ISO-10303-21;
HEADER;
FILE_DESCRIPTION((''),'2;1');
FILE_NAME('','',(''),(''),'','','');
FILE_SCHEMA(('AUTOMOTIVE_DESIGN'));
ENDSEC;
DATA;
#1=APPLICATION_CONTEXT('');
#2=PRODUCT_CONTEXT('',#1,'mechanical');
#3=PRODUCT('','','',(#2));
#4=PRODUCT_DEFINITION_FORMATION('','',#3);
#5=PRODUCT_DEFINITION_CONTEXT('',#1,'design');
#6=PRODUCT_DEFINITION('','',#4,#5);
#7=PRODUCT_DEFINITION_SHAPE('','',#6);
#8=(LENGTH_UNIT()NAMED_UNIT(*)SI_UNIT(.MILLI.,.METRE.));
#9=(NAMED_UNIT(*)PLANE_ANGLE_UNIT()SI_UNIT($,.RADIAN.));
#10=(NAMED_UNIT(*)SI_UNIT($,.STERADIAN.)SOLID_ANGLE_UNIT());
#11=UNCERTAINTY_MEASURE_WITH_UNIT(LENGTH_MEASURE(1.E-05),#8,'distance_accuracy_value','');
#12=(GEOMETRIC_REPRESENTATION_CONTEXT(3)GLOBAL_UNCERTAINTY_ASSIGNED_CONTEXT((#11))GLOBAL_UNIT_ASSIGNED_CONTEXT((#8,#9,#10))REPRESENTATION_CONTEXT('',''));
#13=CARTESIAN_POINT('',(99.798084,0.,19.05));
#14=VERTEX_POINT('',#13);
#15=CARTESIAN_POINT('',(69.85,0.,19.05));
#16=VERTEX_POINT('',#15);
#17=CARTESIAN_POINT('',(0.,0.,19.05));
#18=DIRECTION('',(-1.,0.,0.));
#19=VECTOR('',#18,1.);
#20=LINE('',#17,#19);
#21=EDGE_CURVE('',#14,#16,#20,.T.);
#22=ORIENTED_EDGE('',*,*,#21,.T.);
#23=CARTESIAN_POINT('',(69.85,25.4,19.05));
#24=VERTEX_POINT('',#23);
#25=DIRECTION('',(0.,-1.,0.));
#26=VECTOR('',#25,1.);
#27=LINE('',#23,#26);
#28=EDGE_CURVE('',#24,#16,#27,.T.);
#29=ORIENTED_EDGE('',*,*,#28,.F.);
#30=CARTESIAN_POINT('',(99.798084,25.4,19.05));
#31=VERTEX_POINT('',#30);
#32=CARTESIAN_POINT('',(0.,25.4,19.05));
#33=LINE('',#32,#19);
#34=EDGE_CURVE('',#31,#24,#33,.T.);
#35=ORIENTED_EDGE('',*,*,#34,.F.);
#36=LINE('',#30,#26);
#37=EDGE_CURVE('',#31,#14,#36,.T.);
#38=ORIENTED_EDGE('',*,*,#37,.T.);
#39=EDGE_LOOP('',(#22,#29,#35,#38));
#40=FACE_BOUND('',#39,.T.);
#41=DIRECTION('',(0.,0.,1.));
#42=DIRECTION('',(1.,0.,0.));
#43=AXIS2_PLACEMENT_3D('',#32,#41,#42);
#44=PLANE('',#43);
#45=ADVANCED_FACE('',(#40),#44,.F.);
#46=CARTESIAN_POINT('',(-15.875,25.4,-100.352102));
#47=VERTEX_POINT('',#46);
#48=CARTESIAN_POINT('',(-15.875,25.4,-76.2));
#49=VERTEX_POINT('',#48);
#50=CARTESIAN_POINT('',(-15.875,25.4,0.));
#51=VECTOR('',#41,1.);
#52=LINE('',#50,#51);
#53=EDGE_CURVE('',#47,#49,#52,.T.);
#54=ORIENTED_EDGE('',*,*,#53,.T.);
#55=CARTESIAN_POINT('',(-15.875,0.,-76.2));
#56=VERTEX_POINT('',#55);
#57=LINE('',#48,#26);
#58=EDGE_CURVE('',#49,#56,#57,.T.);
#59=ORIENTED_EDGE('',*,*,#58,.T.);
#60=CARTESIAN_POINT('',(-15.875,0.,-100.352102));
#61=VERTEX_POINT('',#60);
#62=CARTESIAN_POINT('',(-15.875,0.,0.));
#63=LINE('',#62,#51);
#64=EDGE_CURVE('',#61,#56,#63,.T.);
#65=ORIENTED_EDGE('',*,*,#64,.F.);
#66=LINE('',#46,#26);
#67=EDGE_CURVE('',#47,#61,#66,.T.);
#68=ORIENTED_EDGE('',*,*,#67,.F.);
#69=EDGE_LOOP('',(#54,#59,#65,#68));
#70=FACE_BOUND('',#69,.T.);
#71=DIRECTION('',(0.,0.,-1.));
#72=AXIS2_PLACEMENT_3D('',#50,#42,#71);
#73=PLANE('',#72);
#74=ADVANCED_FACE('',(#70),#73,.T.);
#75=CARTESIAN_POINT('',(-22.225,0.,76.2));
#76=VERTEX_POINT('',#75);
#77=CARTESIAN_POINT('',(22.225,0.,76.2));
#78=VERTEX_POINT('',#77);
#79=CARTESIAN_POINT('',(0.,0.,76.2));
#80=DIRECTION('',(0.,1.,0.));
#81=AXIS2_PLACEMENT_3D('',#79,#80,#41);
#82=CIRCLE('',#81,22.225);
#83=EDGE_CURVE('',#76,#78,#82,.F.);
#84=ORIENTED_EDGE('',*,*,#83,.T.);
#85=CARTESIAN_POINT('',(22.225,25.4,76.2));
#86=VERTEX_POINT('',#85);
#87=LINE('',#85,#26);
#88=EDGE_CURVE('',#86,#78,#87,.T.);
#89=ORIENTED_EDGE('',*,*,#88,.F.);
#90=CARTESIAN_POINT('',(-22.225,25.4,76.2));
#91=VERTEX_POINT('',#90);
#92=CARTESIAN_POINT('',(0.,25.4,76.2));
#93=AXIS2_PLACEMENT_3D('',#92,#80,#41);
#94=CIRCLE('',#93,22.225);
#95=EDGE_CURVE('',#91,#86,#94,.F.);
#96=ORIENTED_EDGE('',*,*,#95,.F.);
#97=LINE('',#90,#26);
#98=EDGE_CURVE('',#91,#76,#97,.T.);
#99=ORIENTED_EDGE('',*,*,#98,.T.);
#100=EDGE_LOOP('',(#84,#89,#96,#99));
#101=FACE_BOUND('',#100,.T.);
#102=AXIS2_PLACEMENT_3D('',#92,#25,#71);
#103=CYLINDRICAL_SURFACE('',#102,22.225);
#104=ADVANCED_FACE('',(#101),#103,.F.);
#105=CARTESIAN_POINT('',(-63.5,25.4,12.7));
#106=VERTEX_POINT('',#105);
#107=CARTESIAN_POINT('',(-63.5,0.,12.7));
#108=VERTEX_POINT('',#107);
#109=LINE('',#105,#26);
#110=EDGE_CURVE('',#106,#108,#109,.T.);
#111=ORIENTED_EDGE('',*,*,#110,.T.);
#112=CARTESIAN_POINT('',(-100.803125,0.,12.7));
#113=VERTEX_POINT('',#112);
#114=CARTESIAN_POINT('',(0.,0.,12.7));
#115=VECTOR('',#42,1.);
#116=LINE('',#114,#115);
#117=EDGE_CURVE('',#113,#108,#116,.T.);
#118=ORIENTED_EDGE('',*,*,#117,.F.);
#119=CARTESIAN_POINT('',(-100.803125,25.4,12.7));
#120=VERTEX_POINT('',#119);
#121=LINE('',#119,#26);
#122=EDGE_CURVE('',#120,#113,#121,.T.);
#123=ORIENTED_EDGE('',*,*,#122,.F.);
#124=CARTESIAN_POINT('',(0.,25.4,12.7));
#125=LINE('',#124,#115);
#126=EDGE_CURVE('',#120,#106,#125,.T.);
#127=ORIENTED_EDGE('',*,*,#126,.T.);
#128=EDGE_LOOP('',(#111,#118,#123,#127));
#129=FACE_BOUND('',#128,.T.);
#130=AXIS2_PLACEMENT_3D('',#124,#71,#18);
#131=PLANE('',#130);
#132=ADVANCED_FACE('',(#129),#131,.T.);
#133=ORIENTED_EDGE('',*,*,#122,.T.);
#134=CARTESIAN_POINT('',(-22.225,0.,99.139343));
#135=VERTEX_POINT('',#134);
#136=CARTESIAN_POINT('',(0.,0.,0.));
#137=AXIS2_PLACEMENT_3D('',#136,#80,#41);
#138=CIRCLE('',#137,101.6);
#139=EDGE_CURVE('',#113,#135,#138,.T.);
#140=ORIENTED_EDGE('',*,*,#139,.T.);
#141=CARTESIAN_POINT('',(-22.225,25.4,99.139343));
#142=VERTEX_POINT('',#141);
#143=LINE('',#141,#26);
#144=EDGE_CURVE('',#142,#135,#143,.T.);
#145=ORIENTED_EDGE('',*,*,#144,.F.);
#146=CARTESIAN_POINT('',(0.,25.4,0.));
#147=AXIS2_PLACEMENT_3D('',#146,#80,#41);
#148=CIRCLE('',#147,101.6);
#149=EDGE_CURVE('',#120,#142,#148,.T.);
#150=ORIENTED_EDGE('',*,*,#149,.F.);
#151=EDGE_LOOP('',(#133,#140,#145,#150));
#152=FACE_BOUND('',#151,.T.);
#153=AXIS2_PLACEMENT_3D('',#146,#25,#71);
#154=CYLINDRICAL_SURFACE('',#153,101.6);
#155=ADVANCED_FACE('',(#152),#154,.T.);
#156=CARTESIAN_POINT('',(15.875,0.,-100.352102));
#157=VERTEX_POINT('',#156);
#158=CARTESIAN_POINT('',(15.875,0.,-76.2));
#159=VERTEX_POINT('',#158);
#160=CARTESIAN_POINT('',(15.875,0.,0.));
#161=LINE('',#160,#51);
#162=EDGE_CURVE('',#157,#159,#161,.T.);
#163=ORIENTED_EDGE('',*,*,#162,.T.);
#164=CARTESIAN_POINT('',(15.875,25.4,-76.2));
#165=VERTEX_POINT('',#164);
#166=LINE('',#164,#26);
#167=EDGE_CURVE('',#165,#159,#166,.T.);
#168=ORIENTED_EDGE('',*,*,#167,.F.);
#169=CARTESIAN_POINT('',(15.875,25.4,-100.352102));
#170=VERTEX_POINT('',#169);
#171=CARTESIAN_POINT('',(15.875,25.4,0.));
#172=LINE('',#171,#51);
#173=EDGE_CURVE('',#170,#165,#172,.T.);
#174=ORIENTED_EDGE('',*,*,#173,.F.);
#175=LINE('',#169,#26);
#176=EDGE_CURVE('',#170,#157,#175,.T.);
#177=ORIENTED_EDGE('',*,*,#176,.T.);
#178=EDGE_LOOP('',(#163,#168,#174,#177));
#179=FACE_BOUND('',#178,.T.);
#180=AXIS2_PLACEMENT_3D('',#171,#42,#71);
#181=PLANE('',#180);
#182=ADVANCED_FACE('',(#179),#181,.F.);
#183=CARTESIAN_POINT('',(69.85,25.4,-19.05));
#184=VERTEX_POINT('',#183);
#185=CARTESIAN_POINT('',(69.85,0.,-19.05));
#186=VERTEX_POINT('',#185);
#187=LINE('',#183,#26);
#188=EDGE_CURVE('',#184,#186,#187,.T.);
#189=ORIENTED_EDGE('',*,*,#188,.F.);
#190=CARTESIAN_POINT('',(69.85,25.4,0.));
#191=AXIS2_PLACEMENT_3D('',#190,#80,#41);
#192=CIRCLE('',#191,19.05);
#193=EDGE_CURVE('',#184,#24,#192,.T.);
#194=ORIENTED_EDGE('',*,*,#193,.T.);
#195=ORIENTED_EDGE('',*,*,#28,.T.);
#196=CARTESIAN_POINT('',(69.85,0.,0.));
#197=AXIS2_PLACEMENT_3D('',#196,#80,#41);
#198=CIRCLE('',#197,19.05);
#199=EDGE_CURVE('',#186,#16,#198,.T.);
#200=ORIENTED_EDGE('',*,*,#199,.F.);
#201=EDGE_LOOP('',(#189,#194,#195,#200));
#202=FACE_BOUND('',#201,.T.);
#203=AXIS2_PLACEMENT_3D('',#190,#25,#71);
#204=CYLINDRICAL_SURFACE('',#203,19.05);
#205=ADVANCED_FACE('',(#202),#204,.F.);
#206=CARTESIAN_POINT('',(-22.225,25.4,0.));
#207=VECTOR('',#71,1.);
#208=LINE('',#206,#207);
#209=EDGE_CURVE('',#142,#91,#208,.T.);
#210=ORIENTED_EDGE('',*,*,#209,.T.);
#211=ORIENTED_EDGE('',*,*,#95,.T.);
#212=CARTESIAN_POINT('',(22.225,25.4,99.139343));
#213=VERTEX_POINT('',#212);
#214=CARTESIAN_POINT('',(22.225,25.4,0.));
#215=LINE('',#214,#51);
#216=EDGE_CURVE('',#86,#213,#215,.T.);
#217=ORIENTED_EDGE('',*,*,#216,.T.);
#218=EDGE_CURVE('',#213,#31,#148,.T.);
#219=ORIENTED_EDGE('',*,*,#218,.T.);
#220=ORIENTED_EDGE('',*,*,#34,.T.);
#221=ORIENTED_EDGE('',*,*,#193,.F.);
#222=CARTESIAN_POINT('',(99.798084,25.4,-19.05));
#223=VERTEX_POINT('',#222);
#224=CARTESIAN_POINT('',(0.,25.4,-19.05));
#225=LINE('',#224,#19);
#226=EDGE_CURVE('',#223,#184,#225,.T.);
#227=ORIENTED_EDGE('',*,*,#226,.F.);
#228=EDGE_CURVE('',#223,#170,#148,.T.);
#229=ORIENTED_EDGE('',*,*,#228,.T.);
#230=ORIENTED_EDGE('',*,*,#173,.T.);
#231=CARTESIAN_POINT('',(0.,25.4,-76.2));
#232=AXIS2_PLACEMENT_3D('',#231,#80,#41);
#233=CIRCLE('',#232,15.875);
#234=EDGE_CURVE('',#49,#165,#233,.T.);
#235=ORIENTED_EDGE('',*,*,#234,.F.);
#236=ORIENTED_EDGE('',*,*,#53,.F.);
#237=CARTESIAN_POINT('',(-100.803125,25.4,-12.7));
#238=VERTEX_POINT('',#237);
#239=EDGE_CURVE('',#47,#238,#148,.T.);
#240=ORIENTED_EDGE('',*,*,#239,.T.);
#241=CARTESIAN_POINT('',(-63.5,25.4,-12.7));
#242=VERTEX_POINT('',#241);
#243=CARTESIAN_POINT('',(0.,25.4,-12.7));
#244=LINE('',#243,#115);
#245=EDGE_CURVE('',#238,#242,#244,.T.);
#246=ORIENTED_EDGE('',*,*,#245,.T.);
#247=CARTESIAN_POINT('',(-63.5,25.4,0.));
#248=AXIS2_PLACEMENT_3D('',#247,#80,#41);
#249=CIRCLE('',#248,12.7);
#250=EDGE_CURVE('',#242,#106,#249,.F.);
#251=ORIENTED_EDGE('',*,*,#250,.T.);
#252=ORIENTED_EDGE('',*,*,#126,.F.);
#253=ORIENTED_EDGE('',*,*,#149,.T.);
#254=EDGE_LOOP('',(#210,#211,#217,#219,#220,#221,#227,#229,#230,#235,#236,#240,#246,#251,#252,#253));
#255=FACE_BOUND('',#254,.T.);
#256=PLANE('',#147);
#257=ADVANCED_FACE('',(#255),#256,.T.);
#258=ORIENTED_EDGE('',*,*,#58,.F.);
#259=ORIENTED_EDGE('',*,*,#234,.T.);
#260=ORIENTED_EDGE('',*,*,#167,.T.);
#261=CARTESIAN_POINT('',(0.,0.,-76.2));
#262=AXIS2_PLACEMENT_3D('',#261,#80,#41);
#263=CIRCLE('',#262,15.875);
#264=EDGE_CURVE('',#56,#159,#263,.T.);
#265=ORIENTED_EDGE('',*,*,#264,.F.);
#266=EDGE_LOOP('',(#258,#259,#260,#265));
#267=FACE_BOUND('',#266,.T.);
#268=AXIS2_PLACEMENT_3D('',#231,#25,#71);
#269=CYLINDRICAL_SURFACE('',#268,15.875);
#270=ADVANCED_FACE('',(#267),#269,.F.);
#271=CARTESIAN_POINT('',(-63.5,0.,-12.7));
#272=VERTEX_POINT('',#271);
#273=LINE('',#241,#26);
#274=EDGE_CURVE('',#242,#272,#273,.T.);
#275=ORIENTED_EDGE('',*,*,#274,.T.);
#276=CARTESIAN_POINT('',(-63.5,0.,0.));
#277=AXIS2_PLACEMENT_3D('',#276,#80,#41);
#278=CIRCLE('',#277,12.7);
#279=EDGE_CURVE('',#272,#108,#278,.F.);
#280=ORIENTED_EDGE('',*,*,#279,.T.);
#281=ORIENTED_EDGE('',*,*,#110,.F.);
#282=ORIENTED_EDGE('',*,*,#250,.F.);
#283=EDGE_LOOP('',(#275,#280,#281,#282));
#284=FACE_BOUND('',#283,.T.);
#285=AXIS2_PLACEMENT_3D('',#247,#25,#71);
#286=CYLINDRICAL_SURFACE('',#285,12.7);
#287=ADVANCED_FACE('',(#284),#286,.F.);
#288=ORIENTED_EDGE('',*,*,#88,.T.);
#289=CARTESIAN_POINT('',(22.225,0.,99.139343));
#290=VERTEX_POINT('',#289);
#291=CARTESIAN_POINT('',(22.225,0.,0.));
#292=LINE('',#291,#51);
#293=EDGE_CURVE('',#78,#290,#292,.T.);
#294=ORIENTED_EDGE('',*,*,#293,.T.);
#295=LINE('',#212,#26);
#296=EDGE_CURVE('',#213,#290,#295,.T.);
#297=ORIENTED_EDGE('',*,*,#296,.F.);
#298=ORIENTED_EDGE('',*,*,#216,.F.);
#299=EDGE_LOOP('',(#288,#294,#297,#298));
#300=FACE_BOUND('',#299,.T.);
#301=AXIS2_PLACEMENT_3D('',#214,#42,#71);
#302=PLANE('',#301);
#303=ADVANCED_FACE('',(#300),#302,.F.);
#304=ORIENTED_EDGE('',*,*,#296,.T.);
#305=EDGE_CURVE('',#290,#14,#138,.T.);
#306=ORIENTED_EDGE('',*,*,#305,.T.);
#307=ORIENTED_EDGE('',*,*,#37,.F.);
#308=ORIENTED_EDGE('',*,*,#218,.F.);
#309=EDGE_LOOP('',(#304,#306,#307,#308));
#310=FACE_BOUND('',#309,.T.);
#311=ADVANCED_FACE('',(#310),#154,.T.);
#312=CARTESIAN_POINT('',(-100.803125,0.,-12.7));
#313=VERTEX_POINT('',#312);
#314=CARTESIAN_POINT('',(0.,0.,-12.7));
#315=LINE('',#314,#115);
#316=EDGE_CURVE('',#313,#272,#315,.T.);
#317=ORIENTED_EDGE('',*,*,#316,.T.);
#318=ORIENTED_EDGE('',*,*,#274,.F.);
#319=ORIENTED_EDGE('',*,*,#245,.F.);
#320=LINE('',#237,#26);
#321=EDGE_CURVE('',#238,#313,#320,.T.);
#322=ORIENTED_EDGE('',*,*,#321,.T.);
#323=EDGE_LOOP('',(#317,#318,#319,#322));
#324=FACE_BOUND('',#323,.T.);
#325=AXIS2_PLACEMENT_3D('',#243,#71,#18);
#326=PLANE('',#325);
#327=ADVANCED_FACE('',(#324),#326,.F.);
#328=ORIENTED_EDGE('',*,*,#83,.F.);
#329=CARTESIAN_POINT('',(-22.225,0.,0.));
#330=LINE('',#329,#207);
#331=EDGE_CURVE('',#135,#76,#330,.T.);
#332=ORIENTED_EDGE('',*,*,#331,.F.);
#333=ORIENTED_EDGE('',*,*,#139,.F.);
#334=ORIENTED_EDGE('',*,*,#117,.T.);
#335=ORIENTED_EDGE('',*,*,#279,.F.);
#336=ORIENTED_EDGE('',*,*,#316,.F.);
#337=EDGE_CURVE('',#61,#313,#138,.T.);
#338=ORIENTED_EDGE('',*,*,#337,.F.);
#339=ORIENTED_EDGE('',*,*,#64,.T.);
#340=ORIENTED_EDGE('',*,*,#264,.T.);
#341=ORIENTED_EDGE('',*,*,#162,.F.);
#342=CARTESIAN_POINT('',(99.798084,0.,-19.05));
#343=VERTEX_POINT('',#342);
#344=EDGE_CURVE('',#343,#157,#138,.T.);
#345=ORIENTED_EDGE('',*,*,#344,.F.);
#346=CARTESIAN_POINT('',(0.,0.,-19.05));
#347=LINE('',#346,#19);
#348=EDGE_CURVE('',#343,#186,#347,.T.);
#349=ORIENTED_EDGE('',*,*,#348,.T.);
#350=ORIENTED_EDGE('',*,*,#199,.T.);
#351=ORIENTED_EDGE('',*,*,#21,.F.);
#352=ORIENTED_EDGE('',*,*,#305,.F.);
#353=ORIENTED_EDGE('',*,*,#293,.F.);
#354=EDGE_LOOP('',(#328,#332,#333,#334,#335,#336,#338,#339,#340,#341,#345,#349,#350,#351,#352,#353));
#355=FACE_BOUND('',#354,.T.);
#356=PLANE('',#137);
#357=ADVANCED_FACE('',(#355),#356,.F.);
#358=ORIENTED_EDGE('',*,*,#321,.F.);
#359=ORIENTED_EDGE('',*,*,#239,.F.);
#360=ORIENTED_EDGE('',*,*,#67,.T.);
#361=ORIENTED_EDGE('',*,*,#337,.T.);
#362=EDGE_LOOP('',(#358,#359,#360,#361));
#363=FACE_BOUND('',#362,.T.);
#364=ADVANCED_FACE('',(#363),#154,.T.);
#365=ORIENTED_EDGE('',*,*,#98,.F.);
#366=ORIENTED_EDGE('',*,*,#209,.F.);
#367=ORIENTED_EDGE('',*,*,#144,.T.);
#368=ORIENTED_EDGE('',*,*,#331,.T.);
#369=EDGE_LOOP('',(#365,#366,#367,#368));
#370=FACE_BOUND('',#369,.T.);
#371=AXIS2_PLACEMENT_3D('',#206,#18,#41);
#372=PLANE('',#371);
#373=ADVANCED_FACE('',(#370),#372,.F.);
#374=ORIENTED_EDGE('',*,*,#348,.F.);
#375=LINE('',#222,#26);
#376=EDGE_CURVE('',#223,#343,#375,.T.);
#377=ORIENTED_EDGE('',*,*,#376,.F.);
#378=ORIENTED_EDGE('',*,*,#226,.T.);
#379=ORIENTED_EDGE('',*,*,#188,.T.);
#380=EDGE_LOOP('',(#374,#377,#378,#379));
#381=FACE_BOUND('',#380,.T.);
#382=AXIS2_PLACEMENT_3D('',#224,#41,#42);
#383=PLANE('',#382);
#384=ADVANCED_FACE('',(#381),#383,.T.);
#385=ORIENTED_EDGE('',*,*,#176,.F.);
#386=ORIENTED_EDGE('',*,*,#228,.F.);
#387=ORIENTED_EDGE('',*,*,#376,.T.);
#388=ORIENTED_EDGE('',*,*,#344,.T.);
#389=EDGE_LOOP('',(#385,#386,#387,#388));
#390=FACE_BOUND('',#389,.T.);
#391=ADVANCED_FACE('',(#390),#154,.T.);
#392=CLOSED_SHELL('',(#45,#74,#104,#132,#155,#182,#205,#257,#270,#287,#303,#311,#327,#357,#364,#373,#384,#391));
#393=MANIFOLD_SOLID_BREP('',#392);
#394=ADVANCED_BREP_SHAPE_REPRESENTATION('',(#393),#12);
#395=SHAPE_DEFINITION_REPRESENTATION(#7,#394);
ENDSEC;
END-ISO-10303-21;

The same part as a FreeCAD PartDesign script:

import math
import FreeCAD as App
import Part
import Sketcher
from FreeCAD import Vector
Q = App.Units.Quantity

doc = App.newDocument("Part")
body = doc.addObject("PartDesign::Body", "Body")

# Sketch on XZ plane
sketch1 = body.newObject("Sketcher::SketchObject", "Sketch")
sketch1.AttachmentSupport = (doc.getObject("XZ_Plane"), [""])
sketch1.MapMode = "FlatFace"
sketch1.addGeometry(Part.ArcOfCircle(Part.Circle(Vector(0, 0, 0), Vector(0, 0, 1), 101.6), math.radians(102.635625), math.radians(172.819244)), False)
sketch1.addGeometry(Part.LineSegment(Vector(-22.225, 99.139343, 0), Vector(-22.225, 76.2, 0)), False)
sketch1.addGeometry(Part.ArcOfCircle(Part.Circle(Vector(0, 76.2, 0), Vector(0, 0, 1), 22.225), math.radians(180), math.radians(360)), False)
sketch1.addGeometry(Part.LineSegment(Vector(22.225, 76.2, 0), Vector(22.225, 99.139343, 0)), False)
sketch1.addGeometry(Part.ArcOfCircle(Part.Circle(Vector(0, 0, 0), Vector(0, 0, 1), 101.6), math.radians(10.806923), math.radians(77.364375)), False)
sketch1.addGeometry(Part.LineSegment(Vector(99.798084, 19.05, 0), Vector(69.85, 19.05, 0)), False)
sketch1.addGeometry(Part.ArcOfCircle(Part.Circle(Vector(69.85, 0, 0), Vector(0, 0, 1), 19.05), math.radians(90), math.radians(270)), False)
sketch1.addGeometry(Part.LineSegment(Vector(69.85, -19.05, 0), Vector(99.798084, -19.05, 0)), False)
sketch1.addGeometry(Part.ArcOfCircle(Part.Circle(Vector(0, 0, 0), Vector(0, 0, 1), 101.6), math.radians(-81.010701), math.radians(-10.806923)), False)
sketch1.addGeometry(Part.LineSegment(Vector(15.875, -100.352102, 0), Vector(15.875, -76.2, 0)), False)
sketch1.addGeometry(Part.ArcOfCircle(Part.Circle(Vector(0, -76.2, 0), Vector(0, 0, 1), 15.875), math.radians(0), math.radians(180)), False)
sketch1.addGeometry(Part.LineSegment(Vector(-15.875, -76.2, 0), Vector(-15.875, -100.352102, 0)), False)
sketch1.addGeometry(Part.ArcOfCircle(Part.Circle(Vector(0, 0, 0), Vector(0, 0, 1), 101.6), math.radians(-172.819244), math.radians(-98.989299)), False)
sketch1.addGeometry(Part.LineSegment(Vector(-100.803125, -12.7, 0), Vector(-63.5, -12.7, 0)), False)
sketch1.addGeometry(Part.ArcOfCircle(Part.Circle(Vector(-63.5, 0, 0), Vector(0, 0, 1), 12.7), math.radians(-90), math.radians(90)), False)
sketch1.addGeometry(Part.LineSegment(Vector(-63.5, 12.7, 0), Vector(-100.803125, 12.7, 0)), False)
sketch1.addConstraint(Sketcher.Constraint("Coincident", 0, 1, 1, 1))
sketch1.addConstraint(Sketcher.Constraint("Tangent", 1, 2, 2, 1))
sketch1.addConstraint(Sketcher.Constraint("Tangent", 2, 2, 3, 1))
sketch1.addConstraint(Sketcher.Constraint("Coincident", 3, 2, 4, 2))
sketch1.addConstraint(Sketcher.Constraint("Coincident", 4, 1, 5, 1))
sketch1.addConstraint(Sketcher.Constraint("Tangent", 5, 2, 6, 1))
sketch1.addConstraint(Sketcher.Constraint("Tangent", 6, 2, 7, 1))
sketch1.addConstraint(Sketcher.Constraint("Coincident", 7, 2, 8, 2))
sketch1.addConstraint(Sketcher.Constraint("Coincident", 8, 1, 9, 1))
sketch1.addConstraint(Sketcher.Constraint("Tangent", 9, 2, 10, 1))
sketch1.addConstraint(Sketcher.Constraint("Tangent", 10, 2, 11, 1))
sketch1.addConstraint(Sketcher.Constraint("Coincident", 11, 2, 12, 2))
sketch1.addConstraint(Sketcher.Constraint("Coincident", 12, 1, 13, 1))
sketch1.addConstraint(Sketcher.Constraint("Tangent", 13, 2, 14, 1))
sketch1.addConstraint(Sketcher.Constraint("Tangent", 14, 2, 15, 1))
sketch1.addConstraint(Sketcher.Constraint("Coincident", 15, 2, 0, 2))
sketch1.addConstraint(Sketcher.Constraint("Vertical", 1))
sketch1.addConstraint(Sketcher.Constraint("Vertical", 3))
sketch1.addConstraint(Sketcher.Constraint("Horizontal", 5))
sketch1.addConstraint(Sketcher.Constraint("Horizontal", 7))
sketch1.addConstraint(Sketcher.Constraint("Vertical", 9))
sketch1.addConstraint(Sketcher.Constraint("Vertical", 11))
sketch1.addConstraint(Sketcher.Constraint("Horizontal", 13))
sketch1.addConstraint(Sketcher.Constraint("Horizontal", 15))
sketch1.addConstraint(Sketcher.Constraint("Coincident", 0, 3, -1, 1))
sketch1.addConstraint(Sketcher.Constraint("Coincident", 4, 3, -1, 1))
sketch1.addConstraint(Sketcher.Constraint("Coincident", 8, 3, -1, 1))
sketch1.addConstraint(Sketcher.Constraint("Coincident", 12, 3, -1, 1))
sketch1.addConstraint(Sketcher.Constraint("Equal", 0, 4))
sketch1.addConstraint(Sketcher.Constraint("Equal", 4, 8))
sketch1.addConstraint(Sketcher.Constraint("Equal", 8, 12))
sketch1.addConstraint(Sketcher.Constraint("Symmetric", 2, 3, 10, 3, -1, 1))
sketch1.addConstraint(Sketcher.Constraint("PointOnObject", 2, 3, -2))
sketch1.addConstraint(Sketcher.Constraint("PointOnObject", 6, 3, -1))
sketch1.addConstraint(Sketcher.Constraint("PointOnObject", 14, 3, -1))
sketch1.addConstraint(Sketcher.Constraint("Radius", 0, Q("4 in")))
sketch1.addConstraint(Sketcher.Constraint("Radius", 14, Q("0.5 in")))
sketch1.addConstraint(Sketcher.Constraint("Radius", 6, Q("0.75 in")))
sketch1.addConstraint(Sketcher.Constraint("DistanceY", -1, 1, 2, 3, Q("3 in")))
sketch1.addConstraint(Sketcher.Constraint("Radius", 2, Q("0.875 in")))
sketch1.addConstraint(Sketcher.Constraint("Radius", 10, Q("0.625 in")))
sketch1.addConstraint(Sketcher.Constraint("DistanceX", 14, 3, -1, 1, Q("2.5 in")))
sketch1.addConstraint(Sketcher.Constraint("DistanceX", -1, 1, 6, 3, Q("2.75 in")))
pad1 = body.newObject("PartDesign::Pad", "Pad")
pad1.Profile = sketch1
pad1.Length = Q("1 in")
pad1.Reversed = True

doc.recompute()
